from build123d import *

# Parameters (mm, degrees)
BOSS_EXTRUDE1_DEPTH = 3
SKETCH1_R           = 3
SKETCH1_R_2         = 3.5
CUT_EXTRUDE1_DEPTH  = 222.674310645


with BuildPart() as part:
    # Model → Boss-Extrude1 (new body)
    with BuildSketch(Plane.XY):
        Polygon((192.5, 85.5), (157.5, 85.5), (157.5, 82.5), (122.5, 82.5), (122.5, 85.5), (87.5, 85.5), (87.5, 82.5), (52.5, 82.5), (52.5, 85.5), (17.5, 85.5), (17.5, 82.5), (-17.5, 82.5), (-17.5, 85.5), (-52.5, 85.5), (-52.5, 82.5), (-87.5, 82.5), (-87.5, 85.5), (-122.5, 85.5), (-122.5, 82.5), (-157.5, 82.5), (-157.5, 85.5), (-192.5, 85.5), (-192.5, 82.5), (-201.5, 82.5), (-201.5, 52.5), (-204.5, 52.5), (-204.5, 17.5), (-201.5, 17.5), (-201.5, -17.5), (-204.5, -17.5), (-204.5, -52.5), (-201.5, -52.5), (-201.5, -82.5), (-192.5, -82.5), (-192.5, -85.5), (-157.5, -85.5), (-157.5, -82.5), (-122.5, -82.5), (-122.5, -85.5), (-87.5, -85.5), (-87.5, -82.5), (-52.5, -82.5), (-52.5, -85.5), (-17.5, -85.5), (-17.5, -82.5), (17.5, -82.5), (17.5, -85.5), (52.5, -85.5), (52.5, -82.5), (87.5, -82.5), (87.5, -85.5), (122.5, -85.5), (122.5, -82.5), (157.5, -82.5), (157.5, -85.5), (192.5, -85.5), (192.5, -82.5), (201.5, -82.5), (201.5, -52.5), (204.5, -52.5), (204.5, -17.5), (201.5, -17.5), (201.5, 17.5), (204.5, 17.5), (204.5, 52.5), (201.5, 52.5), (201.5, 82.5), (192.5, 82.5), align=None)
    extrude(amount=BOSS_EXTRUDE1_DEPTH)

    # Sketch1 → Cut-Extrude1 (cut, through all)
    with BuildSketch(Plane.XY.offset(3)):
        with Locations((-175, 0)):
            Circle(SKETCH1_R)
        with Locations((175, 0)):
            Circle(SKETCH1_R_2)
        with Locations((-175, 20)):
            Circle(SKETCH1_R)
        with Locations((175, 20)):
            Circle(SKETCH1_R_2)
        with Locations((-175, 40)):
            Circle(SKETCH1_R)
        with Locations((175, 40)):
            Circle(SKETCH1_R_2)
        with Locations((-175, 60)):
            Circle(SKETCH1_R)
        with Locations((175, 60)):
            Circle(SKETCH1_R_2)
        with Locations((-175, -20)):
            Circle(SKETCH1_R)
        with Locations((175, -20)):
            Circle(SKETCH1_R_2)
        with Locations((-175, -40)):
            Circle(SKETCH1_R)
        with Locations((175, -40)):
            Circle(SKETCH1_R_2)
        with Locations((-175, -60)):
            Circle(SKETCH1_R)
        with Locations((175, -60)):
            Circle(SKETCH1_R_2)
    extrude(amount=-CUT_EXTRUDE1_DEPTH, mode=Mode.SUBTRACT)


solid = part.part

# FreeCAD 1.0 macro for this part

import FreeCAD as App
import Part
import Sketcher
from FreeCAD import Vector
Q = App.Units.Quantity

doc = App.newDocument("Part")
body = doc.addObject("PartDesign::Body", "Body")

# Sketch on XY plane
sketch1 = body.newObject("Sketcher::SketchObject", "Sketch")
sketch1.AttachmentSupport = (doc.getObject("XY_Plane"), [""])
sketch1.MapMode = "FlatFace"
sketch1.addGeometry([
    Part.LineSegment(Vector(192.5, 85.5, 0), Vector(157.5, 85.5, 0)),  # 0
    Part.LineSegment(Vector(157.5, 85.5, 0), Vector(157.5, 82.5, 0)),  # 1
    Part.LineSegment(Vector(157.5, 82.5, 0), Vector(122.5, 82.5, 0)),  # 2
    Part.LineSegment(Vector(122.5, 82.5, 0), Vector(122.5, 85.5, 0)),  # 3
    Part.LineSegment(Vector(122.5, 85.5, 0), Vector(87.5, 85.5, 0)),  # 4
    Part.LineSegment(Vector(87.5, 85.5, 0), Vector(87.5, 82.5, 0)),  # 5
    Part.LineSegment(Vector(87.5, 82.5, 0), Vector(52.5, 82.5, 0)),  # 6
    Part.LineSegment(Vector(52.5, 82.5, 0), Vector(52.5, 85.5, 0)),  # 7
    Part.LineSegment(Vector(52.5, 85.5, 0), Vector(17.5, 85.5, 0)),  # 8
    Part.LineSegment(Vector(17.5, 85.5, 0), Vector(17.5, 82.5, 0)),  # 9
    Part.LineSegment(Vector(17.5, 82.5, 0), Vector(-17.5, 82.5, 0)),  # 10
    Part.LineSegment(Vector(-17.5, 82.5, 0), Vector(-17.5, 85.5, 0)),  # 11
    Part.LineSegment(Vector(-17.5, 85.5, 0), Vector(-52.5, 85.5, 0)),  # 12
    Part.LineSegment(Vector(-52.5, 85.5, 0), Vector(-52.5, 82.5, 0)),  # 13
    Part.LineSegment(Vector(-52.5, 82.5, 0), Vector(-87.5, 82.5, 0)),  # 14
    Part.LineSegment(Vector(-87.5, 82.5, 0), Vector(-87.5, 85.5, 0)),  # 15
    Part.LineSegment(Vector(-87.5, 85.5, 0), Vector(-122.5, 85.5, 0)),  # 16
    Part.LineSegment(Vector(-122.5, 85.5, 0), Vector(-122.5, 82.5, 0)),  # 17
    Part.LineSegment(Vector(-122.5, 82.5, 0), Vector(-157.5, 82.5, 0)),  # 18
    Part.LineSegment(Vector(-157.5, 82.5, 0), Vector(-157.5, 85.5, 0)),  # 19
    Part.LineSegment(Vector(-157.5, 85.5, 0), Vector(-192.5, 85.5, 0)),  # 20
    Part.LineSegment(Vector(-192.5, 85.5, 0), Vector(-192.5, 82.5, 0)),  # 21
    Part.LineSegment(Vector(-192.5, 82.5, 0), Vector(-201.5, 82.5, 0)),  # 22
    Part.LineSegment(Vector(-201.5, 82.5, 0), Vector(-201.5, 52.5, 0)),  # 23
    Part.LineSegment(Vector(-201.5, 52.5, 0), Vector(-204.5, 52.5, 0)),  # 24
    Part.LineSegment(Vector(-204.5, 52.5, 0), Vector(-204.5, 17.5, 0)),  # 25
    Part.LineSegment(Vector(-204.5, 17.5, 0), Vector(-201.5, 17.5, 0)),  # 26
    Part.LineSegment(Vector(-201.5, 17.5, 0), Vector(-201.5, -17.5, 0)),  # 27
    Part.LineSegment(Vector(-201.5, -17.5, 0), Vector(-204.5, -17.5, 0)),  # 28
    Part.LineSegment(Vector(-204.5, -17.5, 0), Vector(-204.5, -52.5, 0)),  # 29
    Part.LineSegment(Vector(-204.5, -52.5, 0), Vector(-201.5, -52.5, 0)),  # 30
    Part.LineSegment(Vector(-201.5, -52.5, 0), Vector(-201.5, -82.5, 0)),  # 31
    Part.LineSegment(Vector(-201.5, -82.5, 0), Vector(-192.5, -82.5, 0)),  # 32
    Part.LineSegment(Vector(-192.5, -82.5, 0), Vector(-192.5, -85.5, 0)),  # 33
    Part.LineSegment(Vector(-192.5, -85.5, 0), Vector(-157.5, -85.5, 0)),  # 34
    Part.LineSegment(Vector(-157.5, -85.5, 0), Vector(-157.5, -82.5, 0)),  # 35
    Part.LineSegment(Vector(-157.5, -82.5, 0), Vector(-122.5, -82.5, 0)),  # 36
    Part.LineSegment(Vector(-122.5, -82.5, 0), Vector(-122.5, -85.5, 0)),  # 37
    Part.LineSegment(Vector(-122.5, -85.5, 0), Vector(-87.5, -85.5, 0)),  # 38
    Part.LineSegment(Vector(-87.5, -85.5, 0), Vector(-87.5, -82.5, 0)),  # 39
    Part.LineSegment(Vector(-87.5, -82.5, 0), Vector(-52.5, -82.5, 0)),  # 40
    Part.LineSegment(Vector(-52.5, -82.5, 0), Vector(-52.5, -85.5, 0)),  # 41
    Part.LineSegment(Vector(-52.5, -85.5, 0), Vector(-17.5, -85.5, 0)),  # 42
    Part.LineSegment(Vector(-17.5, -85.5, 0), Vector(-17.5, -82.5, 0)),  # 43
    Part.LineSegment(Vector(-17.5, -82.5, 0), Vector(17.5, -82.5, 0)),  # 44
    Part.LineSegment(Vector(17.5, -82.5, 0), Vector(17.5, -85.5, 0)),  # 45
    Part.LineSegment(Vector(17.5, -85.5, 0), Vector(52.5, -85.5, 0)),  # 46
    Part.LineSegment(Vector(52.5, -85.5, 0), Vector(52.5, -82.5, 0)),  # 47
    Part.LineSegment(Vector(52.5, -82.5, 0), Vector(87.5, -82.5, 0)),  # 48
    Part.LineSegment(Vector(87.5, -82.5, 0), Vector(87.5, -85.5, 0)),  # 49
    Part.LineSegment(Vector(87.5, -85.5, 0), Vector(122.5, -85.5, 0)),  # 50
    Part.LineSegment(Vector(122.5, -85.5, 0), Vector(122.5, -82.5, 0)),  # 51
    Part.LineSegment(Vector(122.5, -82.5, 0), Vector(157.5, -82.5, 0)),  # 52
    Part.LineSegment(Vector(157.5, -82.5, 0), Vector(157.5, -85.5, 0)),  # 53
    Part.LineSegment(Vector(157.5, -85.5, 0), Vector(192.5, -85.5, 0)),  # 54
    Part.LineSegment(Vector(192.5, -85.5, 0), Vector(192.5, -82.5, 0)),  # 55
    Part.LineSegment(Vector(192.5, -82.5, 0), Vector(201.5, -82.5, 0)),  # 56
    Part.LineSegment(Vector(201.5, -82.5, 0), Vector(201.5, -52.5, 0)),  # 57
    Part.LineSegment(Vector(201.5, -52.5, 0), Vector(204.5, -52.5, 0)),  # 58
    Part.LineSegment(Vector(204.5, -52.5, 0), Vector(204.5, -17.5, 0)),  # 59
    Part.LineSegment(Vector(204.5, -17.5, 0), Vector(201.5, -17.5, 0)),  # 60
    Part.LineSegment(Vector(201.5, -17.5, 0), Vector(201.5, 17.5, 0)),  # 61
    Part.LineSegment(Vector(201.5, 17.5, 0), Vector(204.5, 17.5, 0)),  # 62
    Part.LineSegment(Vector(204.5, 17.5, 0), Vector(204.5, 52.5, 0)),  # 63
    Part.LineSegment(Vector(204.5, 52.5, 0), Vector(201.5, 52.5, 0)),  # 64
    Part.LineSegment(Vector(201.5, 52.5, 0), Vector(201.5, 82.5, 0)),  # 65
    Part.LineSegment(Vector(201.5, 82.5, 0), Vector(192.5, 82.5, 0)),  # 66
    Part.LineSegment(Vector(192.5, 82.5, 0), Vector(192.5, 85.5, 0)),  # 67
], False)
sketch1.addConstraint([
    Sketcher.Constraint("Coincident", 0, 2, 1, 1),
    Sketcher.Constraint("Coincident", 1, 2, 2, 1),
    Sketcher.Constraint("Coincident", 2, 2, 3, 1),
    Sketcher.Constraint("Coincident", 3, 2, 4, 1),
    Sketcher.Constraint("Coincident", 4, 2, 5, 1),
    Sketcher.Constraint("Coincident", 5, 2, 6, 1),
    Sketcher.Constraint("Coincident", 6, 2, 7, 1),
    Sketcher.Constraint("Coincident", 7, 2, 8, 1),
    Sketcher.Constraint("Coincident", 8, 2, 9, 1),
    Sketcher.Constraint("Coincident", 9, 2, 10, 1),
    Sketcher.Constraint("Coincident", 10, 2, 11, 1),
    Sketcher.Constraint("Coincident", 11, 2, 12, 1),
    Sketcher.Constraint("Coincident", 12, 2, 13, 1),
    Sketcher.Constraint("Coincident", 13, 2, 14, 1),
    Sketcher.Constraint("Coincident", 14, 2, 15, 1),
    Sketcher.Constraint("Coincident", 15, 2, 16, 1),
    Sketcher.Constraint("Coincident", 16, 2, 17, 1),
    Sketcher.Constraint("Coincident", 17, 2, 18, 1),
    Sketcher.Constraint("Coincident", 18, 2, 19, 1),
    Sketcher.Constraint("Coincident", 19, 2, 20, 1),
    Sketcher.Constraint("Coincident", 20, 2, 21, 1),
    Sketcher.Constraint("Coincident", 21, 2, 22, 1),
    Sketcher.Constraint("Coincident", 22, 2, 23, 1),
    Sketcher.Constraint("Coincident", 23, 2, 24, 1),
    Sketcher.Constraint("Coincident", 24, 2, 25, 1),
    Sketcher.Constraint("Coincident", 25, 2, 26, 1),
    Sketcher.Constraint("Coincident", 26, 2, 27, 1),
    Sketcher.Constraint("Coincident", 27, 2, 28, 1),
    Sketcher.Constraint("Coincident", 28, 2, 29, 1),
    Sketcher.Constraint("Coincident", 29, 2, 30, 1),
    Sketcher.Constraint("Coincident", 30, 2, 31, 1),
    Sketcher.Constraint("Coincident", 31, 2, 32, 1),
    Sketcher.Constraint("Coincident", 32, 2, 33, 1),
    Sketcher.Constraint("Coincident", 33, 2, 34, 1),
    Sketcher.Constraint("Coincident", 34, 2, 35, 1),
    Sketcher.Constraint("Coincident", 35, 2, 36, 1),
    Sketcher.Constraint("Coincident", 36, 2, 37, 1),
    Sketcher.Constraint("Coincident", 37, 2, 38, 1),
    Sketcher.Constraint("Coincident", 38, 2, 39, 1),
    Sketcher.Constraint("Coincident", 39, 2, 40, 1),
    Sketcher.Constraint("Coincident", 40, 2, 41, 1),
    Sketcher.Constraint("Coincident", 41, 2, 42, 1),
    Sketcher.Constraint("Coincident", 42, 2, 43, 1),
    Sketcher.Constraint("Coincident", 43, 2, 44, 1),
    Sketcher.Constraint("Coincident", 44, 2, 45, 1),
    Sketcher.Constraint("Coincident", 45, 2, 46, 1),
    Sketcher.Constraint("Coincident", 46, 2, 47, 1),
    Sketcher.Constraint("Coincident", 47, 2, 48, 1),
    Sketcher.Constraint("Coincident", 48, 2, 49, 1),
    Sketcher.Constraint("Coincident", 49, 2, 50, 1),
    Sketcher.Constraint("Coincident", 50, 2, 51, 1),
    Sketcher.Constraint("Coincident", 51, 2, 52, 1),
    Sketcher.Constraint("Coincident", 52, 2, 53, 1),
    Sketcher.Constraint("Coincident", 53, 2, 54, 1),
    Sketcher.Constraint("Coincident", 54, 2, 55, 1),
    Sketcher.Constraint("Coincident", 55, 2, 56, 1),
    Sketcher.Constraint("Coincident", 56, 2, 57, 1),
    Sketcher.Constraint("Coincident", 57, 2, 58, 1),
    Sketcher.Constraint("Coincident", 58, 2, 59, 1),
    Sketcher.Constraint("Coincident", 59, 2, 60, 1),
    Sketcher.Constraint("Coincident", 60, 2, 61, 1),
    Sketcher.Constraint("Coincident", 61, 2, 62, 1),
    Sketcher.Constraint("Coincident", 62, 2, 63, 1),
    Sketcher.Constraint("Coincident", 63, 2, 64, 1),
    Sketcher.Constraint("Coincident", 64, 2, 65, 1),
    Sketcher.Constraint("Coincident", 65, 2, 66, 1),
    Sketcher.Constraint("Coincident", 66, 2, 67, 1),
    Sketcher.Constraint("Coincident", 67, 2, 0, 1),
    Sketcher.Constraint("Horizontal", 0),
    Sketcher.Constraint("Vertical", 1),
    Sketcher.Constraint("Horizontal", 2),
    Sketcher.Constraint("Vertical", 3),
    Sketcher.Constraint("Horizontal", 4),
    Sketcher.Constraint("Vertical", 5),
    Sketcher.Constraint("Horizontal", 6),
    Sketcher.Constraint("Vertical", 7),
    Sketcher.Constraint("Horizontal", 8),
    Sketcher.Constraint("Vertical", 9),
    Sketcher.Constraint("Horizontal", 10),
    Sketcher.Constraint("Vertical", 11),
    Sketcher.Constraint("Horizontal", 12),
    Sketcher.Constraint("Vertical", 13),
    Sketcher.Constraint("Horizontal", 14),
    Sketcher.Constraint("Vertical", 15),
    Sketcher.Constraint("Horizontal", 16),
    Sketcher.Constraint("Vertical", 17),
    Sketcher.Constraint("Horizontal", 18),
    Sketcher.Constraint("Vertical", 19),
    Sketcher.Constraint("Horizontal", 20),
    Sketcher.Constraint("Vertical", 21),
    Sketcher.Constraint("Horizontal", 22),
    Sketcher.Constraint("Vertical", 23),
    Sketcher.Constraint("Horizontal", 24),
    Sketcher.Constraint("Vertical", 25),
    Sketcher.Constraint("Horizontal", 26),
    Sketcher.Constraint("Vertical", 27),
    Sketcher.Constraint("Horizontal", 28),
    Sketcher.Constraint("Vertical", 29),
    Sketcher.Constraint("Horizontal", 30),
    Sketcher.Constraint("Vertical", 31),
    Sketcher.Constraint("Horizontal", 32),
    Sketcher.Constraint("Vertical", 33),
    Sketcher.Constraint("Horizontal", 34),
    Sketcher.Constraint("Vertical", 35),
    Sketcher.Constraint("Horizontal", 36),
    Sketcher.Constraint("Vertical", 37),
    Sketcher.Constraint("Horizontal", 38),
    Sketcher.Constraint("Vertical", 39),
    Sketcher.Constraint("Horizontal", 40),
    Sketcher.Constraint("Vertical", 41),
    Sketcher.Constraint("Horizontal", 42),
    Sketcher.Constraint("Vertical", 43),
    Sketcher.Constraint("Horizontal", 44),
    Sketcher.Constraint("Vertical", 45),
    Sketcher.Constraint("Horizontal", 46),
    Sketcher.Constraint("Vertical", 47),
    Sketcher.Constraint("Horizontal", 48),
    Sketcher.Constraint("Vertical", 49),
    Sketcher.Constraint("Horizontal", 50),
    Sketcher.Constraint("Vertical", 51),
    Sketcher.Constraint("Horizontal", 52),
    Sketcher.Constraint("Vertical", 53),
    Sketcher.Constraint("Horizontal", 54),
    Sketcher.Constraint("Vertical", 55),
    Sketcher.Constraint("Horizontal", 56),
    Sketcher.Constraint("Vertical", 57),
    Sketcher.Constraint("Horizontal", 58),
    Sketcher.Constraint("Vertical", 59),
    Sketcher.Constraint("Horizontal", 60),
    Sketcher.Constraint("Vertical", 61),
    Sketcher.Constraint("Horizontal", 62),
    Sketcher.Constraint("Vertical", 63),
    Sketcher.Constraint("Horizontal", 64),
    Sketcher.Constraint("Vertical", 65),
    Sketcher.Constraint("Horizontal", 66),
    Sketcher.Constraint("Vertical", 67),
    Sketcher.Constraint("Symmetric", 0, 2, 34, 2, -1, 1),
    Sketcher.Constraint("Symmetric", 2, 2, 36, 2, -1, 1),
    Sketcher.Constraint("Symmetric", 4, 2, 38, 2, -1, 1),
    Sketcher.Constraint("Symmetric", 6, 2, 40, 2, -1, 1),
    Sketcher.Constraint("Symmetric", 8, 2, 42, 2, -1, 1),
    Sketcher.Constraint("Symmetric", 10, 2, 44, 2, -1, 1),
    Sketcher.Constraint("Symmetric", 12, 2, 46, 2, -1, 1),
    Sketcher.Constraint("Symmetric", 14, 2, 48, 2, -1, 1),
    Sketcher.Constraint("Symmetric", 16, 2, 50, 2, -1, 1),
    Sketcher.Constraint("Symmetric", 18, 2, 52, 2, -1, 1),
    Sketcher.Constraint("Symmetric", 20, 2, 54, 2, -1, 1),
    Sketcher.Constraint("Symmetric", 22, 2, 56, 2, -1, 1),
    Sketcher.Constraint("Symmetric", 24, 2, 58, 2, -1, 1),
    Sketcher.Constraint("Symmetric", 26, 2, 60, 2, -1, 1),
    Sketcher.Constraint("Symmetric", 28, 2, 62, 2, -1, 1),
    Sketcher.Constraint("Symmetric", 30, 2, 64, 2, -1, 1),
    Sketcher.Constraint("Symmetric", 32, 2, 66, 2, -1, 1),
    Sketcher.Constraint("Symmetric", 8, 2, 11, 2, -2),
    Sketcher.Constraint("Symmetric", 6, 2, 13, 2, -2),
    Sketcher.Constraint("Symmetric", 4, 2, 15, 2, -2),
    Sketcher.Constraint("Symmetric", 2, 2, 17, 2, -2),
    Sketcher.Constraint("Symmetric", 0, 2, 19, 2, -2),
    Sketcher.Constraint("Symmetric", 32, 2, 55, 2, -2),
    Sketcher.Constraint("Symmetric", 30, 2, 57, 2, -2),
    Sketcher.Constraint("Symmetric", 28, 2, 59, 2, -2),
    Sketcher.Constraint("Horizontal", 0, 2, 3, 2),
    Sketcher.Constraint("Horizontal", 2, 2, 5, 2),
    Sketcher.Constraint("Horizontal", 4, 2, 7, 2),
    Sketcher.Constraint("Horizontal", 6, 2, 9, 2),
    Sketcher.Constraint("Horizontal", 18, 2, 21, 2),
    Sketcher.Constraint("Vertical", 23, 2, 26, 2),
    Sketcher.Constraint("Equal", 0, 2),
    Sketcher.Constraint("Equal", 2, 4),
    Sketcher.Constraint("Equal", 4, 6),
    Sketcher.Constraint("Equal", 6, 8),
    Sketcher.Constraint("Equal", 8, 10),
    Sketcher.Constraint("Equal", 64, 1),
    Sketcher.Constraint("Equal", 54, 25),
    Sketcher.Constraint("Equal", 25, 27),
    Sketcher.Constraint("DistanceX", 0, 2, 0, 1, Q("35 mm")),
    Sketcher.Constraint("DistanceX", 22, 2, 22, 1, Q("9 mm")),
    Sketcher.Constraint("DistanceX", 24, 2, 24, 1, Q("3 mm")),
    Sketcher.Constraint("DistanceY", 23, 2, 23, 1, Q("30 mm")),
])
pad1 = body.newObject("PartDesign::Pad", "Pad")
pad1.Profile = sketch1
pad1.Length = 3

# Sketch on XY plane
sketch2 = body.newObject("Sketcher::SketchObject", "Sketch001")
sketch2.AttachmentSupport = (doc.getObject("XY_Plane"), [""])
sketch2.MapMode = "FlatFace"
sketch2.AttachmentOffset = App.Placement(Vector(0, 0, 3), App.Rotation())
sketch2.addGeometry([
    Part.Circle(Vector(-175, 0, 0), Vector(0, 0, 1), 3),  # 0
    Part.Circle(Vector(175, 0, 0), Vector(0, 0, 1), 3.5),  # 1
    Part.Circle(Vector(-175, 20, 0), Vector(0, 0, 1), 3),  # 2
    Part.Circle(Vector(175, 20, 0), Vector(0, 0, 1), 3.5),  # 3
    Part.Circle(Vector(-175, 40, 0), Vector(0, 0, 1), 3),  # 4
    Part.Circle(Vector(175, 40, 0), Vector(0, 0, 1), 3.5),  # 5
    Part.Circle(Vector(-175, 60, 0), Vector(0, 0, 1), 3),  # 6
    Part.Circle(Vector(175, 60, 0), Vector(0, 0, 1), 3.5),  # 7
    Part.Circle(Vector(-175, -20, 0), Vector(0, 0, 1), 3),  # 8
    Part.Circle(Vector(175, -20, 0), Vector(0, 0, 1), 3.5),  # 9
    Part.Circle(Vector(-175, -40, 0), Vector(0, 0, 1), 3),  # 10
    Part.Circle(Vector(175, -40, 0), Vector(0, 0, 1), 3.5),  # 11
    Part.Circle(Vector(-175, -60, 0), Vector(0, 0, 1), 3),  # 12
    Part.Circle(Vector(175, -60, 0), Vector(0, 0, 1), 3.5),  # 13
], False)
sketch2.addConstraint([
    Sketcher.Constraint("Equal", 0, 2),
    Sketcher.Constraint("Equal", 1, 3),
    Sketcher.Constraint("Equal", 2, 4),
    Sketcher.Constraint("Equal", 3, 5),
    Sketcher.Constraint("Equal", 4, 6),
    Sketcher.Constraint("Equal", 5, 7),
    Sketcher.Constraint("Equal", 6, 8),
    Sketcher.Constraint("Equal", 7, 9),
    Sketcher.Constraint("Equal", 8, 10),
    Sketcher.Constraint("Equal", 9, 11),
    Sketcher.Constraint("Equal", 10, 12),
    Sketcher.Constraint("Equal", 11, 13),
    Sketcher.Constraint("Symmetric", 0, 3, 1, 3, -1, 1),
    Sketcher.Constraint("Symmetric", 3, 3, 8, 3, -1, 1),
    Sketcher.Constraint("Symmetric", 2, 3, 9, 3, -1, 1),
    Sketcher.Constraint("Symmetric", 5, 3, 10, 3, -1, 1),
    Sketcher.Constraint("Symmetric", 4, 3, 11, 3, -1, 1),
    Sketcher.Constraint("Symmetric", 7, 3, 12, 3, -1, 1),
    Sketcher.Constraint("Symmetric", 6, 3, 13, 3, -1, 1),
    Sketcher.Constraint("Symmetric", 2, 3, 3, 3, -2),
    Sketcher.Constraint("Symmetric", 4, 3, 5, 3, -2),
    Sketcher.Constraint("Symmetric", 6, 3, 7, 3, -2),
    Sketcher.Constraint("PointOnObject", 0, 3, -1),
    Sketcher.Constraint("Vertical", 0, 3, 2, 3),
    Sketcher.Constraint("Vertical", 2, 3, 4, 3),
    Sketcher.Constraint("Vertical", 4, 3, 6, 3),
    Sketcher.Constraint("Diameter", 0, Q("6 mm")),
    Sketcher.Constraint("Diameter", 1, Q("7 mm")),
    Sketcher.Constraint("DistanceX", 0, 3, -1, 1, Q("175 mm")),
    Sketcher.Constraint("DistanceY", -1, 1, 2, 3, Q("20 mm")),
    Sketcher.Constraint("DistanceY", -1, 1, 4, 3, Q("40 mm")),
    Sketcher.Constraint("DistanceY", -1, 1, 6, 3, Q("60 mm")),
])
pocket1 = body.newObject("PartDesign::Pocket", "Pocket")
pocket1.Profile = sketch2
pocket1.Type = "ThroughAll"

doc.recompute()
